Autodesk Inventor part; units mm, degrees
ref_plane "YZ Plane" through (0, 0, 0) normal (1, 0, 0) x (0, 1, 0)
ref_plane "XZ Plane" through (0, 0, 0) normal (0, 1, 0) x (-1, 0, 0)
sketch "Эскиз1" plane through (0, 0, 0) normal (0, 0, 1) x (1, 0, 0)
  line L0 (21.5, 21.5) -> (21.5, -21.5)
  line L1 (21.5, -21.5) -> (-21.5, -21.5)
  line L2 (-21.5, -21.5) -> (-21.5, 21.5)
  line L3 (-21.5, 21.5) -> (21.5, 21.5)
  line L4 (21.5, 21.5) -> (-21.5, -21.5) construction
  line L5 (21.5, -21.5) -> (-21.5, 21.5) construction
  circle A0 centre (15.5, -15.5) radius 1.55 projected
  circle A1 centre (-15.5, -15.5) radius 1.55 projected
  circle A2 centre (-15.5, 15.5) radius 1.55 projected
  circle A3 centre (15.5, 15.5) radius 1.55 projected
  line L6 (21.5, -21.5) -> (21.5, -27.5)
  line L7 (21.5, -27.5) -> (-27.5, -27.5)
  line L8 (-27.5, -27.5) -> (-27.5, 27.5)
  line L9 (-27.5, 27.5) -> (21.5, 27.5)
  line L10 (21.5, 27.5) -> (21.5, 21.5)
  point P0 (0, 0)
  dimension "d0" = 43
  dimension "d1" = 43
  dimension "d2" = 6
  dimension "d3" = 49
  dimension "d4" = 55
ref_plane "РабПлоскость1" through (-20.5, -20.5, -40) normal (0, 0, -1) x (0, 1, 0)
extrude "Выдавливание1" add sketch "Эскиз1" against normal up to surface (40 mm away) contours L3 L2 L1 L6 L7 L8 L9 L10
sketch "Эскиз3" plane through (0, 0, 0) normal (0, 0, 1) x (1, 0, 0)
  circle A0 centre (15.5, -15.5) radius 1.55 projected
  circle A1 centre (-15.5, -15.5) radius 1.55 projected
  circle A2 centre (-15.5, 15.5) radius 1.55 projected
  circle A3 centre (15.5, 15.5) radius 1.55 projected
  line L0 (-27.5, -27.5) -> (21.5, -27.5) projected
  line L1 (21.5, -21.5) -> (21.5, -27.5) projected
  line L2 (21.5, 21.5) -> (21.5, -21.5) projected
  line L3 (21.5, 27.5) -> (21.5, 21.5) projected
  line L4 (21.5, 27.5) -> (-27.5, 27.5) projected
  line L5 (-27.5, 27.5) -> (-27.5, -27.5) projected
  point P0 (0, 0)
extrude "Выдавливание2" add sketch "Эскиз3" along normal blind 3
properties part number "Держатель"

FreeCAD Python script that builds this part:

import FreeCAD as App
import Part
import Sketcher

V = App.Vector

doc = App.newDocument("Part")
body = doc.addObject("PartDesign::Body", "Body")

# Sketch on XY plane
sketch1 = doc.addObject("Sketcher::SketchObject", "Sketch")
body.addObject(sketch1)
sketch1.AttachmentSupport = (doc.XY_Plane, [""])
sketch1.MapMode = "FlatFace"
sketch1.addGeometry(Part.LineSegment(V(-21.5, 21.5, 0), V(21.5, 21.5, 0)), False)
sketch1.addGeometry(Part.LineSegment(V(21.5, 21.5, 0), V(21.5, 27.5, 0)), False)
sketch1.addGeometry(Part.LineSegment(V(21.5, 27.5, 0), V(-27.5, 27.5, 0)), False)
sketch1.addGeometry(Part.LineSegment(V(-27.5, 27.5, 0), V(-27.5, -27.5, 0)), False)
sketch1.addGeometry(Part.LineSegment(V(-27.5, -27.5, 0), V(21.5, -27.5, 0)), False)
sketch1.addGeometry(Part.LineSegment(V(21.5, -27.5, 0), V(21.5, -21.5, 0)), False)
sketch1.addGeometry(Part.LineSegment(V(21.5, -21.5, 0), V(-21.5, -21.5, 0)), False)
sketch1.addGeometry(Part.LineSegment(V(-21.5, -21.5, 0), V(-21.5, 21.5, 0)), False)
sketch1.addConstraint(Sketcher.Constraint("Coincident", 0, 2, 1, 1))
sketch1.addConstraint(Sketcher.Constraint("Coincident", 1, 2, 2, 1))
sketch1.addConstraint(Sketcher.Constraint("Coincident", 2, 2, 3, 1))
sketch1.addConstraint(Sketcher.Constraint("Coincident", 3, 2, 4, 1))
sketch1.addConstraint(Sketcher.Constraint("Coincident", 4, 2, 5, 1))
sketch1.addConstraint(Sketcher.Constraint("Coincident", 5, 2, 6, 1))
sketch1.addConstraint(Sketcher.Constraint("Coincident", 6, 2, 7, 1))
sketch1.addConstraint(Sketcher.Constraint("Coincident", 7, 2, 0, 1))
sketch1.addConstraint(Sketcher.Constraint("Horizontal", 0))
sketch1.addConstraint(Sketcher.Constraint("Vertical", 1))
sketch1.addConstraint(Sketcher.Constraint("Horizontal", 2))
sketch1.addConstraint(Sketcher.Constraint("Vertical", 3))
sketch1.addConstraint(Sketcher.Constraint("Horizontal", 4))
sketch1.addConstraint(Sketcher.Constraint("Vertical", 5))
sketch1.addConstraint(Sketcher.Constraint("Horizontal", 6))
sketch1.addConstraint(Sketcher.Constraint("Vertical", 7))
sketch1.addConstraint(Sketcher.Constraint("Symmetric", 0, 2, 6, 2, -1, 1))
sketch1.addConstraint(Sketcher.Constraint("Symmetric", 1, 2, 4, 2, -1))
sketch1.addConstraint(Sketcher.Constraint("Equal", 6, 7))
sketch1.addConstraint(Sketcher.Constraint("DistanceX", 0, 1, 0, 2, 43.0))
sketch1.addConstraint(Sketcher.Constraint("DistanceX", 2, 2, 2, 1, 49.0))
sketch1.addConstraint(Sketcher.Constraint("DistanceY", 1, 1, 1, 2, 6.0))
pad1 = doc.addObject("PartDesign::Pad", "Pad")
body.addObject(pad1)
pad1.Profile = sketch1
pad1.Length = 40
pad1.Reversed = True

# Sketch on XY plane
sketch2 = doc.addObject("Sketcher::SketchObject", "Sketch001")
body.addObject(sketch2)
sketch2.AttachmentSupport = (doc.XY_Plane, [""])
sketch2.MapMode = "FlatFace"
sketch2.addGeometry(Part.LineSegment(V(-27.5, 27.5, 0), V(-27.5, -27.5, 0)), False)
sketch2.addGeometry(Part.LineSegment(V(-27.5, -27.5, 0), V(21.5, -27.5, 0)), False)
sketch2.addGeometry(Part.LineSegment(V(21.5, -27.5, 0), V(21.5, 27.5, 0)), False)
sketch2.addGeometry(Part.LineSegment(V(21.5, 27.5, 0), V(-27.5, 27.5, 0)), False)
sketch2.addGeometry(Part.Circle(V(-15.5, -15.5, 0), V(0, 0, 1), 1.55), False)
sketch2.addGeometry(Part.Circle(V(15.5, -15.5, 0), V(0, 0, 1), 1.55), False)
sketch2.addGeometry(Part.Circle(V(-15.5, 15.5, 0), V(0, 0, 1), 1.55), False)
sketch2.addGeometry(Part.Circle(V(15.5, 15.5, 0), V(0, 0, 1), 1.55), False)
sketch2.addConstraint(Sketcher.Constraint("Coincident", 0, 2, 1, 1))
sketch2.addConstraint(Sketcher.Constraint("Coincident", 1, 2, 2, 1))
sketch2.addConstraint(Sketcher.Constraint("Coincident", 2, 2, 3, 1))
sketch2.addConstraint(Sketcher.Constraint("Coincident", 3, 2, 0, 1))
sketch2.addConstraint(Sketcher.Constraint("Vertical", 0))
sketch2.addConstraint(Sketcher.Constraint("Horizontal", 1))
sketch2.addConstraint(Sketcher.Constraint("Vertical", 2))
sketch2.addConstraint(Sketcher.Constraint("Horizontal", 3))
sketch2.addConstraint(Sketcher.Constraint("Equal", 4, 5))
sketch2.addConstraint(Sketcher.Constraint("Equal", 5, 6))
sketch2.addConstraint(Sketcher.Constraint("Equal", 6, 7))
sketch2.addConstraint(Sketcher.Constraint("Symmetric", 5, 3, 6, 3, -1, 1))
sketch2.addConstraint(Sketcher.Constraint("Symmetric", 4, 3, 7, 3, -1, 1))
sketch2.addConstraint(Sketcher.Constraint("Symmetric", 4, 3, 5, 3, -2))
sketch2.addConstraint(Sketcher.Constraint("Diameter", 4, 3.1))
sketch2.addConstraint(Sketcher.Constraint("DistanceX", 1, 1, 1, 2, 49.0))
sketch2.addConstraint(Sketcher.Constraint("DistanceY", 0, 2, 0, 1, 55.0))
sketch2.addConstraint(Sketcher.Constraint("DistanceX", 4, 3, 5, 3, 31.0))
sketch2.addConstraint(Sketcher.Constraint("DistanceY", 4, 3, 6, 3, 31.0))
sketch2.addConstraint(Sketcher.Constraint("DistanceX", 0, 2, 4, 3, 12.0))
sketch2.addConstraint(Sketcher.Constraint("DistanceY", 0, 2, 4, 3, 12.0))
pad2 = doc.addObject("PartDesign::Pad", "Pad001")
body.addObject(pad2)
pad2.Profile = sketch2
pad2.Length = 3

doc.recompute()
